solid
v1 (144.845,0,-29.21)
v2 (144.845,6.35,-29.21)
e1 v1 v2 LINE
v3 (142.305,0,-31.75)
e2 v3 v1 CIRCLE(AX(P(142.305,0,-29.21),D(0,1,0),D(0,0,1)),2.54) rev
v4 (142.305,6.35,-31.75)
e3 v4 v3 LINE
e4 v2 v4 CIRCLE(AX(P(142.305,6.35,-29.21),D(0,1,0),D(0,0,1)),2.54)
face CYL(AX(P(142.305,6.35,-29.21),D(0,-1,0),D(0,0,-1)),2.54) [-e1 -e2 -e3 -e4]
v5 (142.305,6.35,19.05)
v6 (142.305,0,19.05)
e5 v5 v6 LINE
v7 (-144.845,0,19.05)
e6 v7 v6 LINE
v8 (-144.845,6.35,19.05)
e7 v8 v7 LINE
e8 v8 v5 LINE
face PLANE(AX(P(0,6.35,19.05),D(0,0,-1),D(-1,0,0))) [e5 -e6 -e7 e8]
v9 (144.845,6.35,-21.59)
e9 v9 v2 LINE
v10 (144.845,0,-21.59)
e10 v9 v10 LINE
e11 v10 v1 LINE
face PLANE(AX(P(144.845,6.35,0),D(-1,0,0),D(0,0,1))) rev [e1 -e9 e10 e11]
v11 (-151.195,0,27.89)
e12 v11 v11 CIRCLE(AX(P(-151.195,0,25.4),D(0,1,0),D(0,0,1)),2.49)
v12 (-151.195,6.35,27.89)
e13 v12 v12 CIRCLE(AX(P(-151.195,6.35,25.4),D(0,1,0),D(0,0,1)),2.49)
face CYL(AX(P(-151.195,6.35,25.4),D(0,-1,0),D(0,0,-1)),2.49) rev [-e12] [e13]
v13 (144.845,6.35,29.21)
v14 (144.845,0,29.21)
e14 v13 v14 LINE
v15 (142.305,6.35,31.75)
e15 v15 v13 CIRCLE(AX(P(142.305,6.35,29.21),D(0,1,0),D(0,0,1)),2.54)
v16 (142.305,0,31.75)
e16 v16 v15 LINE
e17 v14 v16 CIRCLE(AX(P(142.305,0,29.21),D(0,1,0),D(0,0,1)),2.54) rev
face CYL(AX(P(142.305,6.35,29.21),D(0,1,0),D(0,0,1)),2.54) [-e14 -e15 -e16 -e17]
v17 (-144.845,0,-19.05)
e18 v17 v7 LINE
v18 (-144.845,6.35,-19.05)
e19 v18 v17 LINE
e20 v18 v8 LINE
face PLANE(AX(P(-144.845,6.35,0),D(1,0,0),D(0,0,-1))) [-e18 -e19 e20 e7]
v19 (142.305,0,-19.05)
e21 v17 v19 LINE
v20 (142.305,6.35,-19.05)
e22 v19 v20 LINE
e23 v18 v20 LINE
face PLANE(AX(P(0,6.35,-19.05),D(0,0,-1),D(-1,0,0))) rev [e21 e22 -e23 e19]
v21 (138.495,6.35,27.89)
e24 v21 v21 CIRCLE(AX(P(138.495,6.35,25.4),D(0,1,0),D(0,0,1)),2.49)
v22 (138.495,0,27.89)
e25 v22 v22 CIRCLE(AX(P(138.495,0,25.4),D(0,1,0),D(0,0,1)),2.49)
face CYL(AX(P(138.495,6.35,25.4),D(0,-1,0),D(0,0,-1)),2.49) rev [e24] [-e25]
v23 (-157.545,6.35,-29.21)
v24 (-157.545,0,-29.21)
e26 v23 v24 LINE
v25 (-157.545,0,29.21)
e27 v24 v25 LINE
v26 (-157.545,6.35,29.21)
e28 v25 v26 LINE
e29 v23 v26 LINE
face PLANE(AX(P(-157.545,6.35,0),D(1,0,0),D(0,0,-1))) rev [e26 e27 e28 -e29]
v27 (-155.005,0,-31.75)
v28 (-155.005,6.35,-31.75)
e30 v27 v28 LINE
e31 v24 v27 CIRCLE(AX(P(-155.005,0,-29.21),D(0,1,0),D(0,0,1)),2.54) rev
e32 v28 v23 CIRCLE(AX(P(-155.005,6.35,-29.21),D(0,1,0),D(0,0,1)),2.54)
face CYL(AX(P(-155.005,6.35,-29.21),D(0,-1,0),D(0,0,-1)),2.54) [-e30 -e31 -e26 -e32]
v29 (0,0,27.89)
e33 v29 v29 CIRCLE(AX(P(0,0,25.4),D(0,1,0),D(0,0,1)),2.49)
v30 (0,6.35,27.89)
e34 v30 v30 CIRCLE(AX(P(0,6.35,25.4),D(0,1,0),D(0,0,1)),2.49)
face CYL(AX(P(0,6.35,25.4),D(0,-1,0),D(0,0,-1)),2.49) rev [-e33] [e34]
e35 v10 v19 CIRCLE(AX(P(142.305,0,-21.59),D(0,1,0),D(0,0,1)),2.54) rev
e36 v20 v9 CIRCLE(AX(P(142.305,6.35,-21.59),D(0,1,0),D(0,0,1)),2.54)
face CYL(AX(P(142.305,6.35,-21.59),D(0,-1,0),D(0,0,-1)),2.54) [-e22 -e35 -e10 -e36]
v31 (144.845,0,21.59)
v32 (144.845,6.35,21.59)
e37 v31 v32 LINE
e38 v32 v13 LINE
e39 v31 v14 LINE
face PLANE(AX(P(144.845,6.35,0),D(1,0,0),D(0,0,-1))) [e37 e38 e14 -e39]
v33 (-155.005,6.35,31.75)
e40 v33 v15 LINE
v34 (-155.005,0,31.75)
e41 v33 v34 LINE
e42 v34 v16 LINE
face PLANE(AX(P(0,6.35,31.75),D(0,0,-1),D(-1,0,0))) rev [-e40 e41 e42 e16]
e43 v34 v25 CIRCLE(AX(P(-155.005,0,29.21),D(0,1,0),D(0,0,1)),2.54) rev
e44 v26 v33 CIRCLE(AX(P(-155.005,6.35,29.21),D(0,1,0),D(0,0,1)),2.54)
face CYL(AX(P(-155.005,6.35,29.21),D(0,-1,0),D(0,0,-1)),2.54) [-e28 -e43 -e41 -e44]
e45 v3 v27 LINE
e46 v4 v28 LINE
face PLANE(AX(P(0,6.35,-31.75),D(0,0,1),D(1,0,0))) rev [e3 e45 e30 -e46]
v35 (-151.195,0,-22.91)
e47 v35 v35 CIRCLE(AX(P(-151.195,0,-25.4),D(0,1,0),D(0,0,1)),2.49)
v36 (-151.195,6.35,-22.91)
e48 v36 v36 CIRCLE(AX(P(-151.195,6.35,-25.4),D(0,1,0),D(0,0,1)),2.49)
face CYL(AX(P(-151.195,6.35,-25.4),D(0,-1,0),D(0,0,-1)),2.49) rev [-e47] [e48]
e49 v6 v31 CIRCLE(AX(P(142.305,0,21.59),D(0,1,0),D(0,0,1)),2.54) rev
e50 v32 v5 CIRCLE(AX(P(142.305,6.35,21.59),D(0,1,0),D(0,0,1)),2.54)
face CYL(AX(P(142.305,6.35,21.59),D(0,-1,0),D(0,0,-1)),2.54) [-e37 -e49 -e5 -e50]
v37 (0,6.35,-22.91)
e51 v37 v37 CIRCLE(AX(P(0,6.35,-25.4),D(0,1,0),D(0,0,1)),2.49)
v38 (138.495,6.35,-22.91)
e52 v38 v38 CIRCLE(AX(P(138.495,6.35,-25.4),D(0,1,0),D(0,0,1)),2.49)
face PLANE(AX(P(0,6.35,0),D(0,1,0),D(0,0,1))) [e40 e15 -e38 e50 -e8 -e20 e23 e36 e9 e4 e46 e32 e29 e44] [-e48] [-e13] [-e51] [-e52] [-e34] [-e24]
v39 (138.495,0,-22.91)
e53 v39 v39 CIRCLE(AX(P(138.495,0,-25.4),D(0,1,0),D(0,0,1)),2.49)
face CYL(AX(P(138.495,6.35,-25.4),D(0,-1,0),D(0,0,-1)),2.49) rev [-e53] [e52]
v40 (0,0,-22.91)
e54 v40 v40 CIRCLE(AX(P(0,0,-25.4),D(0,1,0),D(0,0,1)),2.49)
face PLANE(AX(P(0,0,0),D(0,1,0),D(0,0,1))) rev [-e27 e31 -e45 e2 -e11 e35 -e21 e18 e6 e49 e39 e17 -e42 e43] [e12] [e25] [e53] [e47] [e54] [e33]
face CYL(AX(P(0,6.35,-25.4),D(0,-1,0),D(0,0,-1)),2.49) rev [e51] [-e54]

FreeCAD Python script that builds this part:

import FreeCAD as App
import Part
import Sketcher

V = App.Vector
Q = App.Units.Quantity


def edges_at(feature, points):
    """Names of the edges that pass closest to the given points."""
    edges = feature.Shape.Edges
    near = lambda p: min(range(len(edges)), key=lambda i: edges[i].distToShape(Part.Vertex(*p))[0])
    return sorted({f"Edge{near(p) + 1}" for p in points})


def add_polygon(sketch, points):
    """Adds a closed chain of lines whose ends are joined by coincident constraints."""
    first, n = sketch.GeometryCount, len(points)
    for a, b in zip(points, points[1:] + points[:1]):
        sketch.addGeometry(Part.LineSegment(App.Vector(*a, 0), App.Vector(*b, 0)), False)
    for i in range(n):
        sketch.addConstraint(Sketcher.Constraint("Coincident", first + i, 2, first + (i + 1) % n, 1))

doc = App.newDocument("Part")
body = doc.addObject("PartDesign::Body", "Body")

# Sketch on XZ plane
sketch1 = body.newObject("Sketcher::SketchObject", "Sketch")
sketch1.AttachmentSupport = (doc.getObject("XZ_Plane"), [""])
sketch1.MapMode = "FlatFace"
add_polygon(sketch1, [(144.8, 31.8), (144.8, 19.1), (-144.8, 19.1), (-144.8, -19.1), (144.8, -19.1), (144.8, -31.8), (-157.5, -31.8), (-157.5, 31.8)])  # lines 0-7
sketch1.addGeometry(Part.Circle(V(0, 25.4, 0), V(0, 0, 1), 2.5), False)  # 8
sketch1.addGeometry(Part.Circle(V(138.5, 25.4, 0), V(0, 0, 1), 2.5), False)  # 9
sketch1.addGeometry(Part.Circle(V(-151.2, -25.4, 0), V(0, 0, 1), 2.5), False)  # 10
sketch1.addGeometry(Part.Circle(V(-151.2, 25.4, 0), V(0, 0, 1), 2.5), False)  # 11
sketch1.addGeometry(Part.Circle(V(138.5, -25.4, 0), V(0, 0, 1), 2.5), False)  # 12
sketch1.addGeometry(Part.Circle(V(0, -25.4, 0), V(0, 0, 1), 2.5), False)  # 13
sketch1.addConstraint([
    Sketcher.Constraint("Vertical", 0),
    Sketcher.Constraint("Horizontal", 1),
    Sketcher.Constraint("Vertical", 2),
    Sketcher.Constraint("Horizontal", 3),
    Sketcher.Constraint("Vertical", 4),
    Sketcher.Constraint("Horizontal", 5),
    Sketcher.Constraint("Vertical", 6),
    Sketcher.Constraint("Horizontal", 7),
    Sketcher.Constraint("Equal", 8, 9),
    Sketcher.Constraint("Equal", 9, 10),
    Sketcher.Constraint("Equal", 10, 11),
    Sketcher.Constraint("Equal", 11, 12),
    Sketcher.Constraint("Equal", 12, 13),
    Sketcher.Constraint("Symmetric", 8, 3, 13, 3, -1, 1),
    Sketcher.Constraint("Symmetric", 0, 2, 2, 2, -1, 1),
    Sketcher.Constraint("Symmetric", 10, 3, 11, 3, -1),
    Sketcher.Constraint("Symmetric", 9, 3, 12, 3, -1),
    Sketcher.Constraint("Symmetric", 4, 2, 7, 2, -1),
    Sketcher.Constraint("PointOnObject", 8, 3, -2),
    Sketcher.Constraint("Horizontal", 8, 3, 9, 3),
    Sketcher.Constraint("Horizontal", 9, 3, 11, 3),
    Sketcher.Constraint("DistanceY", 0, 2, 0, 1, Q("0.5 in")),
    Sketcher.Constraint("DistanceY", 2, 2, 2, 1, Q("1.5 in")),
    Sketcher.Constraint("DistanceY", -1, 1, 8, 3, Q("1 in")),
    Sketcher.Constraint("DistanceX", 5, 2, 2, 2, Q("0.5 in")),
    Sketcher.Constraint("Diameter", 8, 4.98),
    Sketcher.Constraint("DistanceX", 9, 3, 0, 2, Q("0.25 in")),
    Sketcher.Constraint("DistanceX", 11, 3, 1, 2, Q("0.25 in")),
    Sketcher.Constraint("DistanceX", 1, 2, 1, 1, 289.69),
])
pad1 = body.newObject("PartDesign::Pad", "Pad")
pad1.Profile = sketch1
pad1.Length = Q("0.25 in")
pad1.Reversed = True
doc.recompute()

fillet = body.newObject("PartDesign::Fillet", "Fillet")
fillet.Base = (pad1, edges_at(pad1, [
    (144.845, 3.175, 19.05),
    (144.845, 3.175, 31.75),
    (-157.545, 3.175, 31.75),
    (-157.545, 3.175, -31.75),
    (144.845, 3.175, -31.75),
    (144.845, 3.175, -19.05),
]))
fillet.Radius = Q("0.1 in")

doc.recompute()
